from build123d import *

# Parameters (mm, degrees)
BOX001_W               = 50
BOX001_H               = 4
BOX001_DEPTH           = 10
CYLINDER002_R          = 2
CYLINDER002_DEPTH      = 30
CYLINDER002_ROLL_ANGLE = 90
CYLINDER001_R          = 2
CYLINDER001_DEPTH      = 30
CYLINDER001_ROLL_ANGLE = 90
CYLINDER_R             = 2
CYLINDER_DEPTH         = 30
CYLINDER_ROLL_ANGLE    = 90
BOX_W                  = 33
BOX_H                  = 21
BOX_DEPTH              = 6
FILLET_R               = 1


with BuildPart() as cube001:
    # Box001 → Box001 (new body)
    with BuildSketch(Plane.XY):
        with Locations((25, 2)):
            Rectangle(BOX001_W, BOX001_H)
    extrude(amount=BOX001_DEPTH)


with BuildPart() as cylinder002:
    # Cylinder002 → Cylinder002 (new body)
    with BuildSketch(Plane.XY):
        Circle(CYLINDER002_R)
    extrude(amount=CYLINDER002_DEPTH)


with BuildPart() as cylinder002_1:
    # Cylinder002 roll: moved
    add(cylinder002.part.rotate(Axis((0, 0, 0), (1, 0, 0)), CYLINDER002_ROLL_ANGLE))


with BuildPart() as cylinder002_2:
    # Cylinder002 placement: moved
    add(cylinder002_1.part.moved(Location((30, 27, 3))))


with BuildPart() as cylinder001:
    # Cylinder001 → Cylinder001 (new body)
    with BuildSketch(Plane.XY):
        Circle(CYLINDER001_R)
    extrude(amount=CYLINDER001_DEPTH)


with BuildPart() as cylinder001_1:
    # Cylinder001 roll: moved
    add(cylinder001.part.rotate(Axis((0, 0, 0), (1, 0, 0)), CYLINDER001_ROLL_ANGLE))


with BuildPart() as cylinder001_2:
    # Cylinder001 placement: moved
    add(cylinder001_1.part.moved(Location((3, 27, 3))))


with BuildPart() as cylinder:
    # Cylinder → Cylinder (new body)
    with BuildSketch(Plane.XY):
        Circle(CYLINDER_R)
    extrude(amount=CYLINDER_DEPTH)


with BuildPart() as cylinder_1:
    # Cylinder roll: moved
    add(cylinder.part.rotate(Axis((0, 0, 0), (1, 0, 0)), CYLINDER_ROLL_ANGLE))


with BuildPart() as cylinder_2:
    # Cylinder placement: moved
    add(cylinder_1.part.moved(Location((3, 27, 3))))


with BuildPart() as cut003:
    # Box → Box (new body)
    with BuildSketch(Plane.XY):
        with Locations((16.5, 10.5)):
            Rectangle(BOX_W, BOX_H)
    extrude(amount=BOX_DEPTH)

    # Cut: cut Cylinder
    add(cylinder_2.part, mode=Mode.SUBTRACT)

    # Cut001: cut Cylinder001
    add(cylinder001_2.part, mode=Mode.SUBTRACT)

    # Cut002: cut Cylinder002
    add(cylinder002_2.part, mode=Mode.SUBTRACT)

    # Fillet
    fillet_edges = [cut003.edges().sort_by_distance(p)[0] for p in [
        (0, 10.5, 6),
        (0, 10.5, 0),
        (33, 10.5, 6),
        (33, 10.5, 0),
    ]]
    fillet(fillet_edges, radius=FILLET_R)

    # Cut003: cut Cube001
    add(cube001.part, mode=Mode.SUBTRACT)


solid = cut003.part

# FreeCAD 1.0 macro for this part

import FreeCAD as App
import Part
import Sketcher

V = App.Vector


def edges_at(feature, points):
    """Names of the edges that pass closest to the given points."""
    edges = feature.Shape.Edges
    near = lambda p: min(range(len(edges)), key=lambda i: edges[i].distToShape(Part.Vertex(*p))[0])
    return sorted({f"Edge{near(p) + 1}" for p in points})


def add_polygon(sketch, points):
    """Adds a closed chain of lines whose ends are joined by coincident constraints."""
    first, n = sketch.GeometryCount, len(points)
    for a, b in zip(points, points[1:] + points[:1]):
        sketch.addGeometry(Part.LineSegment(App.Vector(*a, 0), App.Vector(*b, 0)), False)
    for i in range(n):
        sketch.addConstraint(Sketcher.Constraint("Coincident", first + i, 2, first + (i + 1) % n, 1))

doc = App.newDocument("Part")
params = doc.addObject("Spreadsheet::Sheet", "Params")
for row, (alias, value) in enumerate([
    ("sketch1_width", "50 mm"),
    ("sketch1_height", "4 mm"),
    ("pad1_length", "10 mm"),
    ("sketch2_diameter", "4 mm"),
    ("pad2_length", "30 mm"),
    ("sketch3_diameter", "4 mm"),
    ("pad3_length", "30 mm"),
    ("sketch4_diameter", "4 mm"),
    ("pad4_length", "30 mm"),
    ("sketch5_width", "33 mm"),
    ("sketch5_height", "21 mm"),
    ("pad5_length", "6 mm"),
    ("fillet_radius", "1 mm"),
], start=1):
    params.set(f"A{row}", alias)
    params.set(f"B{row}", "=" + value)
    params.setAlias(f"B{row}", alias)

body = doc.addObject("PartDesign::Body", "Body")

# Sketch on XY plane
sketch1 = doc.addObject("Sketcher::SketchObject", "Sketch")
body.addObject(sketch1)
sketch1.AttachmentSupport = (doc.XY_Plane, [""])
sketch1.MapMode = "FlatFace"
add_polygon(sketch1, [(0, 4), (0, 0), (50, 0), (50, 4)])  # lines 0-3
sketch1.addConstraint(Sketcher.Constraint("Vertical", 0))
sketch1.addConstraint(Sketcher.Constraint("Horizontal", 1))
sketch1.addConstraint(Sketcher.Constraint("Vertical", 2))
sketch1.addConstraint(Sketcher.Constraint("Horizontal", 3))
sketch1.addConstraint(Sketcher.Constraint("Coincident", 0, 2, -1, 1))
sketch1.addConstraint(Sketcher.Constraint("DistanceX", 1, 1, 1, 2, 50.0))
sketch1.addConstraint(Sketcher.Constraint("DistanceY", 0, 2, 0, 1, 4.0))
sketch1.setExpression("Constraints[9]", "Params.sketch1_width")
sketch1.setExpression("Constraints[10]", "Params.sketch1_height")
pad1 = doc.addObject("PartDesign::Pad", "Pad")
body.addObject(pad1)
pad1.Profile = sketch1
pad1.setExpression("Length", "Params.pad1_length")
body2 = doc.addObject("PartDesign::Body", "Body001")

# Sketch on XY plane
sketch2 = doc.addObject("Sketcher::SketchObject", "Sketch001")
body2.addObject(sketch2)
sketch2.AttachmentSupport = (doc.getObject("XY_Plane001"), [""])
sketch2.MapMode = "FlatFace"
sketch2.addGeometry(Part.Circle(V(0, 0, 0), V(0, 0, 1), 2), False)
sketch2.addConstraint(Sketcher.Constraint("Coincident", 0, 3, -1, 1))
sketch2.addConstraint(Sketcher.Constraint("Diameter", 0, 4.0))
sketch2.setExpression("Constraints[1]", "Params.sketch2_diameter")
pad2 = doc.addObject("PartDesign::Pad", "Pad001")
body2.addObject(pad2)
pad2.Profile = sketch2
pad2.setExpression("Length", "Params.pad2_length")
body3 = doc.addObject("PartDesign::Body", "Body002")
doc.recompute()

body2.Placement = App.Placement(V(0, 0, 0), App.Rotation(V(1, 0, 0), 90))
boolean = doc.addObject("PartDesign::Boolean", "Boolean")
body3.addObject(boolean)
boolean.Type = "Fuse"
boolean.addObjects([body2])
body4 = doc.addObject("PartDesign::Body", "Body003")
doc.recompute()

body3.Placement = App.Placement(V(30, 27, 3), App.Rotation(V(0, 0, 1), 0))
boolean2 = doc.addObject("PartDesign::Boolean", "Boolean001")
body4.addObject(boolean2)
boolean2.Type = "Fuse"
boolean2.addObjects([body3])
body5 = doc.addObject("PartDesign::Body", "Body004")

# Sketch on XY plane
sketch3 = doc.addObject("Sketcher::SketchObject", "Sketch002")
body5.addObject(sketch3)
sketch3.AttachmentSupport = (doc.getObject("XY_Plane004"), [""])
sketch3.MapMode = "FlatFace"
sketch3.addGeometry(Part.Circle(V(0, 0, 0), V(0, 0, 1), 2), False)
sketch3.addConstraint(Sketcher.Constraint("Coincident", 0, 3, -1, 1))
sketch3.addConstraint(Sketcher.Constraint("Diameter", 0, 4.0))
sketch3.setExpression("Constraints[1]", "Params.sketch3_diameter")
pad3 = doc.addObject("PartDesign::Pad", "Pad002")
body5.addObject(pad3)
pad3.Profile = sketch3
pad3.setExpression("Length", "Params.pad3_length")
body6 = doc.addObject("PartDesign::Body", "Body005")
doc.recompute()

body5.Placement = App.Placement(V(0, 0, 0), App.Rotation(V(1, 0, 0), 90))
boolean3 = doc.addObject("PartDesign::Boolean", "Boolean002")
body6.addObject(boolean3)
boolean3.Type = "Fuse"
boolean3.addObjects([body5])
body7 = doc.addObject("PartDesign::Body", "Body006")
doc.recompute()

body6.Placement = App.Placement(V(3, 27, 3), App.Rotation(V(0, 0, 1), 0))
boolean4 = doc.addObject("PartDesign::Boolean", "Boolean003")
body7.addObject(boolean4)
boolean4.Type = "Fuse"
boolean4.addObjects([body6])
body8 = doc.addObject("PartDesign::Body", "Body007")

# Sketch on XY plane
sketch4 = doc.addObject("Sketcher::SketchObject", "Sketch003")
body8.addObject(sketch4)
sketch4.AttachmentSupport = (doc.getObject("XY_Plane007"), [""])
sketch4.MapMode = "FlatFace"
sketch4.addGeometry(Part.Circle(V(0, 0, 0), V(0, 0, 1), 2), False)
sketch4.addConstraint(Sketcher.Constraint("Coincident", 0, 3, -1, 1))
sketch4.addConstraint(Sketcher.Constraint("Diameter", 0, 4.0))
sketch4.setExpression("Constraints[1]", "Params.sketch4_diameter")
pad4 = doc.addObject("PartDesign::Pad", "Pad003")
body8.addObject(pad4)
pad4.Profile = sketch4
pad4.setExpression("Length", "Params.pad4_length")
body9 = doc.addObject("PartDesign::Body", "Body008")
doc.recompute()

body8.Placement = App.Placement(V(0, 0, 0), App.Rotation(V(1, 0, 0), 90))
boolean5 = doc.addObject("PartDesign::Boolean", "Boolean004")
body9.addObject(boolean5)
boolean5.Type = "Fuse"
boolean5.addObjects([body8])
body10 = doc.addObject("PartDesign::Body", "Body009")
doc.recompute()

body9.Placement = App.Placement(V(3, 27, 3), App.Rotation(V(0, 0, 1), 0))
boolean6 = doc.addObject("PartDesign::Boolean", "Boolean005")
body10.addObject(boolean6)
boolean6.Type = "Fuse"
boolean6.addObjects([body9])
body11 = doc.addObject("PartDesign::Body", "Body010")

# Sketch on XY plane
sketch5 = doc.addObject("Sketcher::SketchObject", "Sketch004")
body11.addObject(sketch5)
sketch5.AttachmentSupport = (doc.getObject("XY_Plane010"), [""])
sketch5.MapMode = "FlatFace"
add_polygon(sketch5, [(0, 21), (0, 0), (33, 0), (33, 21)])  # lines 0-3
sketch5.addConstraint(Sketcher.Constraint("Vertical", 0))
sketch5.addConstraint(Sketcher.Constraint("Horizontal", 1))
sketch5.addConstraint(Sketcher.Constraint("Vertical", 2))
sketch5.addConstraint(Sketcher.Constraint("Horizontal", 3))
sketch5.addConstraint(Sketcher.Constraint("Coincident", 0, 2, -1, 1))
sketch5.addConstraint(Sketcher.Constraint("DistanceX", 1, 1, 1, 2, 33.0))
sketch5.addConstraint(Sketcher.Constraint("DistanceY", 0, 2, 0, 1, 21.0))
sketch5.setExpression("Constraints[9]", "Params.sketch5_width")
sketch5.setExpression("Constraints[10]", "Params.sketch5_height")
pad5 = doc.addObject("PartDesign::Pad", "Pad004")
body11.addObject(pad5)
pad5.Profile = sketch5
pad5.setExpression("Length", "Params.pad5_length")
doc.recompute()

boolean7 = doc.addObject("PartDesign::Boolean", "Boolean006")
body11.addObject(boolean7)
boolean7.Type = "Cut"
boolean7.addObjects([body10])
doc.recompute()

boolean8 = doc.addObject("PartDesign::Boolean", "Boolean007")
body11.addObject(boolean8)
boolean8.Type = "Cut"
boolean8.addObjects([body7])
doc.recompute()

boolean9 = doc.addObject("PartDesign::Boolean", "Boolean008")
body11.addObject(boolean9)
boolean9.Type = "Cut"
boolean9.addObjects([body4])
doc.recompute()

fillet = doc.addObject("PartDesign::Fillet", "Fillet")
body11.addObject(fillet)
fillet.Base = (boolean9, edges_at(boolean9, [
    (0, 10.5, 6),
    (0, 10.5, 0),
    (33, 10.5, 6),
    (33, 10.5, 0),
]))
fillet.setExpression("Radius", "Params.fillet_radius")
doc.recompute()

boolean10 = doc.addObject("PartDesign::Boolean", "Boolean009")
body11.addObject(boolean10)
boolean10.Type = "Cut"
boolean10.addObjects([body])

doc.recompute()
